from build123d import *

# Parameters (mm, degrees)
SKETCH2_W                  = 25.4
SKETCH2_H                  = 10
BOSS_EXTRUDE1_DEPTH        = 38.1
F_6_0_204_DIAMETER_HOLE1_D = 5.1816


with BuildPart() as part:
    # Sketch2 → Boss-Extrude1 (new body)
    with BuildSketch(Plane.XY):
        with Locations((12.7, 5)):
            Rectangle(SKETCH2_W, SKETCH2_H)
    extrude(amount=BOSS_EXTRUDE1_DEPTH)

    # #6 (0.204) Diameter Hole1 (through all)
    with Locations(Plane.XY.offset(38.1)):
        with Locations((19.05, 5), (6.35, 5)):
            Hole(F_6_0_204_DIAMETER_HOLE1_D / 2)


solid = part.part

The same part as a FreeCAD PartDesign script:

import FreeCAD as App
import Part
import Sketcher
from FreeCAD import Vector
Q = App.Units.Quantity

doc = App.newDocument("Part")
params = doc.addObject("Spreadsheet::Sheet", "Params")
for row, (alias, value) in enumerate([
    ("sketch1_width", "1 in"),
    ("pad1_length", "1.5 in"),
    ("sketch2_diameter", "0.204 in"),
    ("hole_diameter", "0.204 in"),
], start=1):
    params.set(f"A{row}", alias)
    params.set(f"B{row}", "=" + value)
    params.setAlias(f"B{row}", alias)

body = doc.addObject("PartDesign::Body", "Body")

# Sketch on XY plane
sketch1 = doc.addObject("Sketcher::SketchObject", "Sketch")
body.addObject(sketch1)
sketch1.AttachmentSupport = (doc.XY_Plane, [""])
sketch1.MapMode = "FlatFace"
sketch1.addGeometry([
    Part.LineSegment(Vector(0, 10, 0), Vector(0, 0, 0)),
    Part.LineSegment(Vector(0, 0, 0), Vector(25, 0, 0)),
    Part.LineSegment(Vector(25, 0, 0), Vector(25, 10, 0)),
    Part.LineSegment(Vector(25, 10, 0), Vector(0, 10, 0)),
], False)
sketch1.addConstraint([
    Sketcher.Constraint("Coincident", 0, 2, 1, 1),
    Sketcher.Constraint("Coincident", 1, 2, 2, 1),
    Sketcher.Constraint("Coincident", 2, 2, 3, 1),
    Sketcher.Constraint("Coincident", 3, 2, 0, 1),
    Sketcher.Constraint("Vertical", 0),
    Sketcher.Constraint("Horizontal", 1),
    Sketcher.Constraint("Vertical", 2),
    Sketcher.Constraint("Horizontal", 3),
    Sketcher.Constraint("Coincident", 0, 2, -1, 1),
    Sketcher.Constraint("DistanceX", 1, 1, 1, 2, Q("1 in")),
    Sketcher.Constraint("DistanceY", 0, 2, 0, 1, 10.0),
])
sketch1.setExpression("Constraints[9]", "Params.sketch1_width")
pad1 = doc.addObject("PartDesign::Pad", "Pad")
body.addObject(pad1)
pad1.Profile = sketch1
pad1.setExpression("Length", "Params.pad1_length")

# Sketch on XY plane
sketch2 = doc.addObject("Sketcher::SketchObject", "Sketch001")
body.addObject(sketch2)
sketch2.AttachmentSupport = (doc.XY_Plane, [""])
sketch2.MapMode = "FlatFace"
sketch2.AttachmentOffset = App.Placement(Vector(0, 0, 1.5 * 25.4), App.Rotation())
sketch2.addGeometry([
    Part.Circle(Vector(19.1, 5, 0), Vector(0, 0, 1), 2.6),
    Part.Circle(Vector(6.3, 5, 0), Vector(0, 0, 1), 2.6),
], False)
sketch2.addConstraint([
    Sketcher.Constraint("Equal", 0, 1),
    Sketcher.Constraint("Horizontal", 0, 3, 1, 3),
    Sketcher.Constraint("Diameter", 0, Q("0.204 in")),
    Sketcher.Constraint("DistanceX", 1, 3, 0, 3, Q("0.5 in")),
    Sketcher.Constraint("DistanceX", -1, 1, 0, 3, Q("0.75 in")),
    Sketcher.Constraint("DistanceY", -1, 1, 0, 3, 5.0),
])
sketch2.setExpression("Constraints[2]", "Params.sketch2_diameter")
doc.recompute()
hole = doc.addObject("PartDesign::Hole", "Hole")
body.addObject(hole)
hole.Profile = sketch2
hole.ThreadType = "None"
hole.setExpression("Diameter", "Params.hole_diameter")
hole.DepthType = "ThroughAll"

doc.recompute()
